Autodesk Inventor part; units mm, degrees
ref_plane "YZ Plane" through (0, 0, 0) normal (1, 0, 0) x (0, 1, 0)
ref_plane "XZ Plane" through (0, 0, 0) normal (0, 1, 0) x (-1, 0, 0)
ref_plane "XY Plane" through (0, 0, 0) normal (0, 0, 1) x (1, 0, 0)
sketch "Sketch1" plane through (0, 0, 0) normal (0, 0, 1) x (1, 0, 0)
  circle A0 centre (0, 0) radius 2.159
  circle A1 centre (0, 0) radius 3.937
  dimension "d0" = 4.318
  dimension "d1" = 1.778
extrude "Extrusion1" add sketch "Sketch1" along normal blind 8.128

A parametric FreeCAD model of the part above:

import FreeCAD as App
import Part
import Sketcher
from FreeCAD import Vector
Q = App.Units.Quantity

doc = App.newDocument("Part")
body = doc.addObject("PartDesign::Body", "Body")

sketch1 = doc.addObject("Sketcher::SketchObject", "Sketch")
body.addObject(sketch1)
sketch1.AttachmentSupport = (doc.XY_Plane, [""])
sketch1.MapMode = "FlatFace"
sketch1.addGeometry([
    Part.Circle(Vector(0, 0, 0), Vector(0, 0, 1), 3.937),
    Part.Circle(Vector(0, 0, 0), Vector(0, 0, 1), 2.159),
], False)
sketch1.addConstraint([
    Sketcher.Constraint("Coincident", 0, 3, -1, 1),
    Sketcher.Constraint("Coincident", 1, 3, -1, 1),
    Sketcher.Constraint("Diameter", 1, Q("0.17 in")),
    Sketcher.Constraint("Diameter", 0, Q("0.31 in")),
])
pad1 = doc.addObject("PartDesign::Pad", "Pad")
body.addObject(pad1)
pad1.Profile = sketch1
pad1.Length = Q("0.32 in")

doc.recompute()
